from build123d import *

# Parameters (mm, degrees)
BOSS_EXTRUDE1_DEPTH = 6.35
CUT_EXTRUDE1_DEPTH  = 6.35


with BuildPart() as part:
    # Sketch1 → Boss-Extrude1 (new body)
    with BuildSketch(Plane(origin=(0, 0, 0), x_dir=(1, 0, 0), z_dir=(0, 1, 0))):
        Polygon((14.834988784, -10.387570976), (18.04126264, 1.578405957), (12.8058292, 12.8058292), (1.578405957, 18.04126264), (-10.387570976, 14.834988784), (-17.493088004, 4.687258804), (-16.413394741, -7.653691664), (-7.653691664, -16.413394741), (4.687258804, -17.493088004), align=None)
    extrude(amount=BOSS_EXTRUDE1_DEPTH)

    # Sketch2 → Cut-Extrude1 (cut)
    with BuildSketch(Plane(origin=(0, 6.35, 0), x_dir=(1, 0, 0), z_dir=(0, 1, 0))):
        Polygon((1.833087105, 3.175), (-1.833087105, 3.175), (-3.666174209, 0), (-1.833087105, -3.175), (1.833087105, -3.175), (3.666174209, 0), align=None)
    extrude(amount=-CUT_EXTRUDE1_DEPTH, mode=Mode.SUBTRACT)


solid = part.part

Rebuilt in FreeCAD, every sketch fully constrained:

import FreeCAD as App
import Part
import Sketcher
Q = App.Units.Quantity


def add_polygon(sketch, points):
    """Adds a closed chain of lines whose ends are joined by coincident constraints."""
    first, n = sketch.GeometryCount, len(points)
    for a, b in zip(points, points[1:] + points[:1]):
        sketch.addGeometry(Part.LineSegment(App.Vector(*a, 0), App.Vector(*b, 0)), False)
    for i in range(n):
        sketch.addConstraint(Sketcher.Constraint("Coincident", first + i, 2, first + (i + 1) % n, 1))

doc = App.newDocument("Part")
body = doc.addObject("PartDesign::Body", "Body")

# Sketch on XZ plane
sketch1 = body.newObject("Sketcher::SketchObject", "Sketch")
sketch1.AttachmentSupport = (doc.getObject("XZ_Plane"), [""])
sketch1.MapMode = "FlatFace"
add_polygon(sketch1, [(15, 10), (18, -2), (13, -13), (2, -18), (-10, -15), (-17, -5), (-16, 8), (-8, 16), (5, 17)])  # lines 0-8
sketch1.addConstraint(Sketcher.Constraint("Equal", 0, 1))
sketch1.addConstraint(Sketcher.Constraint("Equal", 1, 2))
sketch1.addConstraint(Sketcher.Constraint("Equal", 2, 3))
sketch1.addConstraint(Sketcher.Constraint("Equal", 3, 4))
sketch1.addConstraint(Sketcher.Constraint("Equal", 4, 5))
sketch1.addConstraint(Sketcher.Constraint("Equal", 5, 6))
sketch1.addConstraint(Sketcher.Constraint("Equal", 6, 7))
sketch1.addConstraint(Sketcher.Constraint("Equal", 7, 8))
sketch1.addConstraint(Sketcher.Constraint("Angle", 0, Q("-75 deg")))
sketch1.addConstraint(Sketcher.Constraint("Angle", 1, Q("-115 deg")))
sketch1.addConstraint(Sketcher.Constraint("Angle", 2, Q("-155 deg")))
sketch1.addConstraint(Sketcher.Constraint("Angle", 3, Q("165 deg")))
sketch1.addConstraint(Sketcher.Constraint("Angle", 4, Q("125 deg")))
sketch1.addConstraint(Sketcher.Constraint("Angle", 5, Q("85 deg")))
sketch1.addConstraint(Sketcher.Constraint("Angle", 6, Q("45 deg")))
sketch1.addConstraint(Sketcher.Constraint("DistanceX", 3, 2, 1, 2, Q("23.1934 mm")))
sketch1.addConstraint(Sketcher.Constraint("DistanceX", -1, 1, 1, 2, Q("12.805829 mm")))
sketch1.addConstraint(Sketcher.Constraint("DistanceY", 1, 2, -1, 1, Q("12.805829 mm")))
pad1 = body.newObject("PartDesign::Pad", "Pad")
pad1.Profile = sketch1
pad1.Length = Q("0.25 in")
pad1.Reversed = True

# Sketch on XZ plane
sketch2 = body.newObject("Sketcher::SketchObject", "Sketch001")
sketch2.AttachmentSupport = (doc.getObject("XZ_Plane"), [""])
sketch2.MapMode = "FlatFace"
sketch2.AttachmentOffset = App.Placement(App.Vector(0, 0, -0.25 * 25.4), App.Rotation())
add_polygon(sketch2, [(1.8, -3.2), (-1.8, -3.2), (-3.7, 0), (-1.8, 3.2), (1.8, 3.2), (3.7, 0)])  # lines 0-5
sketch2.addConstraint(Sketcher.Constraint("Horizontal", 0))
sketch2.addConstraint(Sketcher.Constraint("Horizontal", 3))
sketch2.addConstraint(Sketcher.Constraint("Symmetric", 0, 2, 3, 2, -1, 1))
sketch2.addConstraint(Sketcher.Constraint("Symmetric", 1, 2, 4, 2, -1, 1))
sketch2.addConstraint(Sketcher.Constraint("PointOnObject", 1, 2, -1))
sketch2.addConstraint(Sketcher.Constraint("Parallel", 2, 5))
sketch2.addConstraint(Sketcher.Constraint("Vertical", 0, 2, 2, 2))
sketch2.addConstraint(Sketcher.Constraint("Angle", 1, Q("120 deg")))
sketch2.addConstraint(Sketcher.Constraint("DistanceY", 0, 2, 2, 2, Q("0.25 in")))
sketch2.addConstraint(Sketcher.Constraint("DistanceX", 0, 2, 0, 1, Q("3.666174 mm")))
pocket1 = body.newObject("PartDesign::Pocket", "Pocket")
pocket1.Profile = sketch2
pocket1.Length = Q("0.25 in")
pocket1.Reversed = True

doc.recompute()
